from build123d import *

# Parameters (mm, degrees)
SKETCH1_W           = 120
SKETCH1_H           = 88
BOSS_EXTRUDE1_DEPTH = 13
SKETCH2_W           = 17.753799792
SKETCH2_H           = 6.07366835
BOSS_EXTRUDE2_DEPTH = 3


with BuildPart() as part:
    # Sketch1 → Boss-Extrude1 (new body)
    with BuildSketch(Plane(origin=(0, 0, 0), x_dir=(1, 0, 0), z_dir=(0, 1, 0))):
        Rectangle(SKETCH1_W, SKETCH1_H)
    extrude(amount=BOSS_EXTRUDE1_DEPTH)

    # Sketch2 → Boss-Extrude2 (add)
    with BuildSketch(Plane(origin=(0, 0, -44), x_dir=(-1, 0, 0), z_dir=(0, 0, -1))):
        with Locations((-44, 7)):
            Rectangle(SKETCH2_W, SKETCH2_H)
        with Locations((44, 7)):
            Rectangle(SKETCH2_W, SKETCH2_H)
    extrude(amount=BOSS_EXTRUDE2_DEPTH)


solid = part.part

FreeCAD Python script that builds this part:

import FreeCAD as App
import Part
import Sketcher

V = App.Vector


def add_polygon(sketch, points):
    """Adds a closed chain of lines whose ends are joined by coincident constraints."""
    first, n = sketch.GeometryCount, len(points)
    for a, b in zip(points, points[1:] + points[:1]):
        sketch.addGeometry(Part.LineSegment(App.Vector(*a, 0), App.Vector(*b, 0)), False)
    for i in range(n):
        sketch.addConstraint(Sketcher.Constraint("Coincident", first + i, 2, first + (i + 1) % n, 1))

doc = App.newDocument("Part")
params = doc.addObject("Spreadsheet::Sheet", "Params")
for row, (alias, value) in enumerate([
    ("sketch1_width", "120 mm"),
    ("sketch1_height", "88 mm"),
    ("pad1_length", "13 mm"),
    ("pad2_length", "3 mm"),
], start=1):
    params.set(f"A{row}", alias)
    params.set(f"B{row}", "=" + value)
    params.setAlias(f"B{row}", alias)

body = doc.addObject("PartDesign::Body", "Body")

# Sketch on XZ plane
sketch1 = body.newObject("Sketcher::SketchObject", "Sketch")
sketch1.AttachmentSupport = (doc.getObject("XZ_Plane"), [""])
sketch1.MapMode = "FlatFace"
add_polygon(sketch1, [(-60, -44), (-60, 44), (60, 44), (60, -44)])  # lines 0-3
sketch1.addConstraint([
    Sketcher.Constraint("Vertical", 0),
    Sketcher.Constraint("Horizontal", 1),
    Sketcher.Constraint("Vertical", 2),
    Sketcher.Constraint("Horizontal", 3),
    Sketcher.Constraint("Symmetric", 0, 2, 2, 2, -1, 1),
    Sketcher.Constraint("DistanceX", 1, 1, 1, 2, 120.0),
    Sketcher.Constraint("DistanceY", 0, 1, 0, 2, 88.0),
])
sketch1.setExpression("Constraints[9]", "Params.sketch1_width")
sketch1.setExpression("Constraints[10]", "Params.sketch1_height")
pad1 = body.newObject("PartDesign::Pad", "Pad")
pad1.Profile = sketch1
pad1.setExpression("Length", "Params.pad1_length")
pad1.Reversed = True

# Sketch on XY plane
sketch2 = body.newObject("Sketcher::SketchObject", "Sketch001")
sketch2.AttachmentSupport = (doc.getObject("XY_Plane"), [""])
sketch2.MapMode = "FlatFace"
sketch2.AttachmentOffset = App.Placement(V(0, 0, -44), App.Rotation())
add_polygon(sketch2, [(53, 10), (53, 4), (35, 4), (35, 10)])  # lines 0-3
add_polygon(sketch2, [(-35, 10), (-35, 4), (-53, 4), (-53, 10)])  # lines 4-7
sketch2.addConstraint([
    Sketcher.Constraint("Vertical", 0),
    Sketcher.Constraint("Horizontal", 1),
    Sketcher.Constraint("Vertical", 2),
    Sketcher.Constraint("Horizontal", 3),
    Sketcher.Constraint("Vertical", 4),
    Sketcher.Constraint("Horizontal", 5),
    Sketcher.Constraint("Vertical", 6),
    Sketcher.Constraint("Horizontal", 7),
    Sketcher.Constraint("Symmetric", 1, 2, 4, 2, -2),
    Sketcher.Constraint("Symmetric", 3, 2, 6, 2, -2),
    Sketcher.Constraint("DistanceX", 4, 2, 0, 2, 88.0),
    Sketcher.Constraint("DistanceX", 1, 2, 1, 1, 17.7538),
    Sketcher.Constraint("DistanceY", 0, 2, 0, 1, 6.073668),
    Sketcher.Constraint("DistanceY", -1, 1, 0, 2, 3.963166),
])
pad2 = body.newObject("PartDesign::Pad", "Pad001")
pad2.Profile = sketch2
pad2.setExpression("Length", "Params.pad2_length")
pad2.Reversed = True

doc.recompute()
